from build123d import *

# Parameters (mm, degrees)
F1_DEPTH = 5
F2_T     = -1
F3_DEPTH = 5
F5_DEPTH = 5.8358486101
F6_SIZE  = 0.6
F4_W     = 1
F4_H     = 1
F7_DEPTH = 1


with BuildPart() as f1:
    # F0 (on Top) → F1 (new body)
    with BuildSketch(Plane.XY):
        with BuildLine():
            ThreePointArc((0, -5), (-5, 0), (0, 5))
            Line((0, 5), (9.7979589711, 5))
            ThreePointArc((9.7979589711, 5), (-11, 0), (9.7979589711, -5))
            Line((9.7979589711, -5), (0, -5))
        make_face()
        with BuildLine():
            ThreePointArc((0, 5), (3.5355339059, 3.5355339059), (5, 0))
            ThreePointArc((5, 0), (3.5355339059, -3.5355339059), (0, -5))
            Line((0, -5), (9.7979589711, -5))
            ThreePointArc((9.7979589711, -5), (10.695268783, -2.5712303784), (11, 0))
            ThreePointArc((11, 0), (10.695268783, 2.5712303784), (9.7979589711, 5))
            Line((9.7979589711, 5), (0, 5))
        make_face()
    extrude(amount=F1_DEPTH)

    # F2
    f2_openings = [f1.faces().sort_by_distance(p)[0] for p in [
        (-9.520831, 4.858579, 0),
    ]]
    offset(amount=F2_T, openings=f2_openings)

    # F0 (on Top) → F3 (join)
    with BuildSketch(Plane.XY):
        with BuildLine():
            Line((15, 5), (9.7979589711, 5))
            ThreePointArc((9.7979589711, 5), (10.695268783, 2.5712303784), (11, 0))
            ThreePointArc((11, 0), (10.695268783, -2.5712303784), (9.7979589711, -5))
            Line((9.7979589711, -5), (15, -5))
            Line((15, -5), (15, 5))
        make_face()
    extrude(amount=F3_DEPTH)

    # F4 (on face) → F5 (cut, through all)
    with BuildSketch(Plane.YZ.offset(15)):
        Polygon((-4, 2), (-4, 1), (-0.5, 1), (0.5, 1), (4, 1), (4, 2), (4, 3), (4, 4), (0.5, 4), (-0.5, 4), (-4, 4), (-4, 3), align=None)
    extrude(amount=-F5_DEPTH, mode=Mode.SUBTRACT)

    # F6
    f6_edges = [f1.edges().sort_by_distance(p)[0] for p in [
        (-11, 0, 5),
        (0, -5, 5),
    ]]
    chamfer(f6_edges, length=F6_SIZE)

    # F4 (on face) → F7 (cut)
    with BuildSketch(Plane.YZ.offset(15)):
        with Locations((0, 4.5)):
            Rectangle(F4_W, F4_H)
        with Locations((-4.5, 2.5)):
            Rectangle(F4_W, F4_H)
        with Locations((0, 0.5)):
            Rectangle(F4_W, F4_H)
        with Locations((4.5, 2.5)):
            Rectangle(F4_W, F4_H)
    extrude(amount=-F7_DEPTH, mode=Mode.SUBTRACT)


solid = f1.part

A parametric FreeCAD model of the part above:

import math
import FreeCAD as App
import Part
import Sketcher

V = App.Vector


def edges_at(feature, points):
    """Names of the edges that pass closest to the given points."""
    edges = feature.Shape.Edges
    near = lambda p: min(range(len(edges)), key=lambda i: edges[i].distToShape(Part.Vertex(*p))[0])
    return sorted({f"Edge{near(p) + 1}" for p in points})


def faces_at(feature, points):
    """Names of the faces that lie closest to the given points."""
    faces = feature.Shape.Faces
    near = lambda p: min(range(len(faces)), key=lambda i: faces[i].distToShape(Part.Vertex(*p))[0])
    return sorted({f"Face{near(p) + 1}" for p in points})

doc = App.newDocument("Part")
body = doc.addObject("PartDesign::Body", "Body")

sketch1 = doc.addObject("Sketcher::SketchObject", "Sketch")
body.addObject(sketch1)
sketch1.AttachmentSupport = (doc.XY_Plane, [""])
sketch1.MapMode = "FlatFace"
sketch1.addGeometry([
    Part.ArcOfCircle(Part.Circle(V(0, 0, 0), V(0, 0, 1), 11), math.radians(27), math.radians(333)),
    Part.ArcOfCircle(Part.Circle(V(0, 0, 0), V(0, 0, 1), 11), math.radians(-27), math.radians(0)),
    Part.ArcOfCircle(Part.Circle(V(0, 0, 0), V(0, 0, 1), 11), math.radians(0), math.radians(27)),
    Part.ArcOfCircle(Part.Circle(V(0, 0, 0), V(0, 0, 1), 5), math.radians(90), math.radians(270)),
    Part.ArcOfCircle(Part.Circle(V(0, 0, 0), V(0, 0, 1), 5), math.radians(0), math.radians(90)),
    Part.ArcOfCircle(Part.Circle(V(0, 0, 0), V(0, 0, 1), 5), math.radians(-90), math.radians(0)),
], False)
sketch1.addConstraint([
    Sketcher.Constraint("Tangent", 0, 2, 1, 1),
    Sketcher.Constraint("Tangent", 1, 2, 2, 1),
    Sketcher.Constraint("Tangent", 2, 2, 0, 1),
    Sketcher.Constraint("Tangent", 3, 1, 4, 2),
    Sketcher.Constraint("Tangent", 4, 1, 5, 2),
    Sketcher.Constraint("Tangent", 5, 1, 3, 2),
    Sketcher.Constraint("Coincident", 0, 3, -1, 1),
    Sketcher.Constraint("Coincident", 3, 3, -1, 1),
    Sketcher.Constraint("PointOnObject", 1, 2, -1),
    Sketcher.Constraint("PointOnObject", 3, 1, -2),
    Sketcher.Constraint("PointOnObject", 4, 1, -1),
    Sketcher.Constraint("PointOnObject", 5, 1, -2),
    Sketcher.Constraint("Horizontal", 2, 2, 3, 1),
    Sketcher.Constraint("Horizontal", 0, 2, 5, 1),
    Sketcher.Constraint("Radius", 0, 11.0),
    Sketcher.Constraint("Radius", 3, 5.0),
])
pad1 = doc.addObject("PartDesign::Pad", "Pad")
body.addObject(pad1)
pad1.Profile = sketch1
pad1.Length = 5
doc.recompute()

thickness = doc.addObject("PartDesign::Thickness", "Thickness")
body.addObject(thickness)
thickness.Base = (pad1, faces_at(pad1, [(-4.4, -4.4, 0)]))
thickness.Value = 1
thickness.Reversed = True
thickness.Join = "Arc"

sketch2 = doc.addObject("Sketcher::SketchObject", "Sketch001")
body.addObject(sketch2)
sketch2.AttachmentSupport = (doc.XY_Plane, [""])
sketch2.MapMode = "FlatFace"
sketch2.addGeometry([
    Part.LineSegment(V(15, 5, 0), V(10, 5, 0)),
    Part.ArcOfCircle(Part.Circle(V(0, 0, 0), V(0, 0, 1), 11), math.radians(0), math.radians(27)),
    Part.ArcOfCircle(Part.Circle(V(0, 0, 0), V(0, 0, 1), 11), math.radians(-27), math.radians(0)),
    Part.LineSegment(V(10, -5, 0), V(15, -5, 0)),
    Part.LineSegment(V(15, -5, 0), V(15, 5, 0)),
], False)
sketch2.addConstraint([
    Sketcher.Constraint("Coincident", 0, 2, 1, 2),
    Sketcher.Constraint("Tangent", 1, 1, 2, 2),
    Sketcher.Constraint("Coincident", 2, 1, 3, 1),
    Sketcher.Constraint("Coincident", 3, 2, 4, 1),
    Sketcher.Constraint("Coincident", 4, 2, 0, 1),
    Sketcher.Constraint("Horizontal", 0),
    Sketcher.Constraint("Horizontal", 3),
    Sketcher.Constraint("Vertical", 4),
    Sketcher.Constraint("Coincident", 1, 3, -1, 1),
    Sketcher.Constraint("Equal", 1, 2),
    Sketcher.Constraint("PointOnObject", 1, 1, -1),
    Sketcher.Constraint("Vertical", 0, 2, 2, 1),
    Sketcher.Constraint("Radius", 1, 11.0),
    Sketcher.Constraint("DistanceY", 4, 1, 4, 2, 10.0),
    Sketcher.Constraint("DistanceX", -1, 1, 3, 2, 15.0),
])
pad2 = doc.addObject("PartDesign::Pad", "Pad001")
body.addObject(pad2)
pad2.Profile = sketch2
pad2.Length = 5

sketch3 = doc.addObject("Sketcher::SketchObject", "Sketch002")
body.addObject(sketch3)
sketch3.AttachmentSupport = (doc.YZ_Plane, [""])
sketch3.MapMode = "FlatFace"
sketch3.AttachmentOffset = App.Placement(V(0, 0, 15), App.Rotation())
sketch3.addGeometry([
    Part.LineSegment(V(-4, 1, 0), V(4, 1, 0)),
    Part.LineSegment(V(4, 1, 0), V(4, 4, 0)),
    Part.LineSegment(V(4, 4, 0), V(-4, 4, 0)),
    Part.LineSegment(V(-4, 4, 0), V(-4, 1, 0)),
], False)
sketch3.addConstraint([
    Sketcher.Constraint("Coincident", 0, 2, 1, 1),
    Sketcher.Constraint("Coincident", 1, 2, 2, 1),
    Sketcher.Constraint("Coincident", 2, 2, 3, 1),
    Sketcher.Constraint("Coincident", 3, 2, 0, 1),
    Sketcher.Constraint("Horizontal", 0),
    Sketcher.Constraint("Vertical", 1),
    Sketcher.Constraint("Horizontal", 2),
    Sketcher.Constraint("Vertical", 3),
    Sketcher.Constraint("DistanceX", 0, 1, 0, 2, 8.0),
    Sketcher.Constraint("DistanceY", 1, 1, 1, 2, 3.0),
    Sketcher.Constraint("DistanceX", -1, 1, 0, 2, 4.0),
    Sketcher.Constraint("DistanceY", -1, 1, 0, 2, 1.0),
])
pocket1 = doc.addObject("PartDesign::Pocket", "Pocket")
body.addObject(pocket1)
pocket1.Profile = sketch3
pocket1.Length = 5.835849
doc.recompute()

chamfer = doc.addObject("PartDesign::Chamfer", "Chamfer")
body.addObject(chamfer)
chamfer.Base = (pocket1, edges_at(pocket1, [(-11, 0, 5), (-5, 0, 5)]))
chamfer.Size = 0.6

sketch4 = doc.addObject("Sketcher::SketchObject", "Sketch003")
body.addObject(sketch4)
sketch4.AttachmentSupport = (doc.YZ_Plane, [""])
sketch4.MapMode = "FlatFace"
sketch4.AttachmentOffset = App.Placement(V(0, 0, 15), App.Rotation())
sketch4.addGeometry([
    Part.LineSegment(V(-0.5, 5, 0), V(-0.5, 4, 0)),
    Part.LineSegment(V(-0.5, 4, 0), V(0.5, 4, 0)),
    Part.LineSegment(V(0.5, 4, 0), V(0.5, 5, 0)),
    Part.LineSegment(V(0.5, 5, 0), V(-0.5, 5, 0)),
    Part.LineSegment(V(-5, 3, 0), V(-5, 2, 0)),
    Part.LineSegment(V(-5, 2, 0), V(-4, 2, 0)),
    Part.LineSegment(V(-4, 2, 0), V(-4, 3, 0)),
    Part.LineSegment(V(-4, 3, 0), V(-5, 3, 0)),
    Part.LineSegment(V(-0.5, 1, 0), V(-0.5, 0, 0)),
    Part.LineSegment(V(-0.5, 0, 0), V(0.5, 0, 0)),
    Part.LineSegment(V(0.5, 0, 0), V(0.5, 1, 0)),
    Part.LineSegment(V(0.5, 1, 0), V(-0.5, 1, 0)),
    Part.LineSegment(V(4, 3, 0), V(4, 2, 0)),
    Part.LineSegment(V(4, 2, 0), V(5, 2, 0)),
    Part.LineSegment(V(5, 2, 0), V(5, 3, 0)),
    Part.LineSegment(V(5, 3, 0), V(4, 3, 0)),
], False)
sketch4.addConstraint([
    Sketcher.Constraint("Coincident", 0, 2, 1, 1),
    Sketcher.Constraint("Coincident", 1, 2, 2, 1),
    Sketcher.Constraint("Coincident", 2, 2, 3, 1),
    Sketcher.Constraint("Coincident", 3, 2, 0, 1),
    Sketcher.Constraint("Coincident", 4, 2, 5, 1),
    Sketcher.Constraint("Coincident", 5, 2, 6, 1),
    Sketcher.Constraint("Coincident", 6, 2, 7, 1),
    Sketcher.Constraint("Coincident", 7, 2, 4, 1),
    Sketcher.Constraint("Coincident", 8, 2, 9, 1),
    Sketcher.Constraint("Coincident", 9, 2, 10, 1),
    Sketcher.Constraint("Coincident", 10, 2, 11, 1),
    Sketcher.Constraint("Coincident", 11, 2, 8, 1),
    Sketcher.Constraint("Coincident", 12, 2, 13, 1),
    Sketcher.Constraint("Coincident", 13, 2, 14, 1),
    Sketcher.Constraint("Coincident", 14, 2, 15, 1),
    Sketcher.Constraint("Coincident", 15, 2, 12, 1),
    Sketcher.Constraint("Vertical", 0),
    Sketcher.Constraint("Horizontal", 1),
    Sketcher.Constraint("Vertical", 2),
    Sketcher.Constraint("Horizontal", 3),
    Sketcher.Constraint("Vertical", 4),
    Sketcher.Constraint("Horizontal", 5),
    Sketcher.Constraint("Vertical", 6),
    Sketcher.Constraint("Horizontal", 7),
    Sketcher.Constraint("Vertical", 8),
    Sketcher.Constraint("Horizontal", 9),
    Sketcher.Constraint("Vertical", 10),
    Sketcher.Constraint("Horizontal", 11),
    Sketcher.Constraint("Vertical", 12),
    Sketcher.Constraint("Horizontal", 13),
    Sketcher.Constraint("Vertical", 14),
    Sketcher.Constraint("Horizontal", 15),
    Sketcher.Constraint("Symmetric", 8, 2, 9, 2, -1, 1),
    Sketcher.Constraint("Symmetric", 5, 2, 12, 2, -2),
    Sketcher.Constraint("Symmetric", 7, 2, 14, 2, -2),
    Sketcher.Constraint("Vertical", 3, 2, 8, 2),
    Sketcher.Constraint("Vertical", 2, 2, 9, 2),
    Sketcher.Constraint("Equal", 3, 5),
    Sketcher.Constraint("Equal", 15, 0),
    Sketcher.Constraint("Equal", 2, 4),
    Sketcher.Constraint("Equal", 6, 8),
    Sketcher.Constraint("DistanceX", 1, 1, 1, 2, 1.0),
    Sketcher.Constraint("DistanceY", -1, 1, 0, 2, 4.0),
    Sketcher.Constraint("DistanceX", 4, 2, -1, 1, 5.0),
    Sketcher.Constraint("DistanceY", -1, 1, 4, 2, 2.0),
])
pocket2 = doc.addObject("PartDesign::Pocket", "Pocket001")
body.addObject(pocket2)
pocket2.Profile = sketch4
pocket2.Length = 1

doc.recompute()
